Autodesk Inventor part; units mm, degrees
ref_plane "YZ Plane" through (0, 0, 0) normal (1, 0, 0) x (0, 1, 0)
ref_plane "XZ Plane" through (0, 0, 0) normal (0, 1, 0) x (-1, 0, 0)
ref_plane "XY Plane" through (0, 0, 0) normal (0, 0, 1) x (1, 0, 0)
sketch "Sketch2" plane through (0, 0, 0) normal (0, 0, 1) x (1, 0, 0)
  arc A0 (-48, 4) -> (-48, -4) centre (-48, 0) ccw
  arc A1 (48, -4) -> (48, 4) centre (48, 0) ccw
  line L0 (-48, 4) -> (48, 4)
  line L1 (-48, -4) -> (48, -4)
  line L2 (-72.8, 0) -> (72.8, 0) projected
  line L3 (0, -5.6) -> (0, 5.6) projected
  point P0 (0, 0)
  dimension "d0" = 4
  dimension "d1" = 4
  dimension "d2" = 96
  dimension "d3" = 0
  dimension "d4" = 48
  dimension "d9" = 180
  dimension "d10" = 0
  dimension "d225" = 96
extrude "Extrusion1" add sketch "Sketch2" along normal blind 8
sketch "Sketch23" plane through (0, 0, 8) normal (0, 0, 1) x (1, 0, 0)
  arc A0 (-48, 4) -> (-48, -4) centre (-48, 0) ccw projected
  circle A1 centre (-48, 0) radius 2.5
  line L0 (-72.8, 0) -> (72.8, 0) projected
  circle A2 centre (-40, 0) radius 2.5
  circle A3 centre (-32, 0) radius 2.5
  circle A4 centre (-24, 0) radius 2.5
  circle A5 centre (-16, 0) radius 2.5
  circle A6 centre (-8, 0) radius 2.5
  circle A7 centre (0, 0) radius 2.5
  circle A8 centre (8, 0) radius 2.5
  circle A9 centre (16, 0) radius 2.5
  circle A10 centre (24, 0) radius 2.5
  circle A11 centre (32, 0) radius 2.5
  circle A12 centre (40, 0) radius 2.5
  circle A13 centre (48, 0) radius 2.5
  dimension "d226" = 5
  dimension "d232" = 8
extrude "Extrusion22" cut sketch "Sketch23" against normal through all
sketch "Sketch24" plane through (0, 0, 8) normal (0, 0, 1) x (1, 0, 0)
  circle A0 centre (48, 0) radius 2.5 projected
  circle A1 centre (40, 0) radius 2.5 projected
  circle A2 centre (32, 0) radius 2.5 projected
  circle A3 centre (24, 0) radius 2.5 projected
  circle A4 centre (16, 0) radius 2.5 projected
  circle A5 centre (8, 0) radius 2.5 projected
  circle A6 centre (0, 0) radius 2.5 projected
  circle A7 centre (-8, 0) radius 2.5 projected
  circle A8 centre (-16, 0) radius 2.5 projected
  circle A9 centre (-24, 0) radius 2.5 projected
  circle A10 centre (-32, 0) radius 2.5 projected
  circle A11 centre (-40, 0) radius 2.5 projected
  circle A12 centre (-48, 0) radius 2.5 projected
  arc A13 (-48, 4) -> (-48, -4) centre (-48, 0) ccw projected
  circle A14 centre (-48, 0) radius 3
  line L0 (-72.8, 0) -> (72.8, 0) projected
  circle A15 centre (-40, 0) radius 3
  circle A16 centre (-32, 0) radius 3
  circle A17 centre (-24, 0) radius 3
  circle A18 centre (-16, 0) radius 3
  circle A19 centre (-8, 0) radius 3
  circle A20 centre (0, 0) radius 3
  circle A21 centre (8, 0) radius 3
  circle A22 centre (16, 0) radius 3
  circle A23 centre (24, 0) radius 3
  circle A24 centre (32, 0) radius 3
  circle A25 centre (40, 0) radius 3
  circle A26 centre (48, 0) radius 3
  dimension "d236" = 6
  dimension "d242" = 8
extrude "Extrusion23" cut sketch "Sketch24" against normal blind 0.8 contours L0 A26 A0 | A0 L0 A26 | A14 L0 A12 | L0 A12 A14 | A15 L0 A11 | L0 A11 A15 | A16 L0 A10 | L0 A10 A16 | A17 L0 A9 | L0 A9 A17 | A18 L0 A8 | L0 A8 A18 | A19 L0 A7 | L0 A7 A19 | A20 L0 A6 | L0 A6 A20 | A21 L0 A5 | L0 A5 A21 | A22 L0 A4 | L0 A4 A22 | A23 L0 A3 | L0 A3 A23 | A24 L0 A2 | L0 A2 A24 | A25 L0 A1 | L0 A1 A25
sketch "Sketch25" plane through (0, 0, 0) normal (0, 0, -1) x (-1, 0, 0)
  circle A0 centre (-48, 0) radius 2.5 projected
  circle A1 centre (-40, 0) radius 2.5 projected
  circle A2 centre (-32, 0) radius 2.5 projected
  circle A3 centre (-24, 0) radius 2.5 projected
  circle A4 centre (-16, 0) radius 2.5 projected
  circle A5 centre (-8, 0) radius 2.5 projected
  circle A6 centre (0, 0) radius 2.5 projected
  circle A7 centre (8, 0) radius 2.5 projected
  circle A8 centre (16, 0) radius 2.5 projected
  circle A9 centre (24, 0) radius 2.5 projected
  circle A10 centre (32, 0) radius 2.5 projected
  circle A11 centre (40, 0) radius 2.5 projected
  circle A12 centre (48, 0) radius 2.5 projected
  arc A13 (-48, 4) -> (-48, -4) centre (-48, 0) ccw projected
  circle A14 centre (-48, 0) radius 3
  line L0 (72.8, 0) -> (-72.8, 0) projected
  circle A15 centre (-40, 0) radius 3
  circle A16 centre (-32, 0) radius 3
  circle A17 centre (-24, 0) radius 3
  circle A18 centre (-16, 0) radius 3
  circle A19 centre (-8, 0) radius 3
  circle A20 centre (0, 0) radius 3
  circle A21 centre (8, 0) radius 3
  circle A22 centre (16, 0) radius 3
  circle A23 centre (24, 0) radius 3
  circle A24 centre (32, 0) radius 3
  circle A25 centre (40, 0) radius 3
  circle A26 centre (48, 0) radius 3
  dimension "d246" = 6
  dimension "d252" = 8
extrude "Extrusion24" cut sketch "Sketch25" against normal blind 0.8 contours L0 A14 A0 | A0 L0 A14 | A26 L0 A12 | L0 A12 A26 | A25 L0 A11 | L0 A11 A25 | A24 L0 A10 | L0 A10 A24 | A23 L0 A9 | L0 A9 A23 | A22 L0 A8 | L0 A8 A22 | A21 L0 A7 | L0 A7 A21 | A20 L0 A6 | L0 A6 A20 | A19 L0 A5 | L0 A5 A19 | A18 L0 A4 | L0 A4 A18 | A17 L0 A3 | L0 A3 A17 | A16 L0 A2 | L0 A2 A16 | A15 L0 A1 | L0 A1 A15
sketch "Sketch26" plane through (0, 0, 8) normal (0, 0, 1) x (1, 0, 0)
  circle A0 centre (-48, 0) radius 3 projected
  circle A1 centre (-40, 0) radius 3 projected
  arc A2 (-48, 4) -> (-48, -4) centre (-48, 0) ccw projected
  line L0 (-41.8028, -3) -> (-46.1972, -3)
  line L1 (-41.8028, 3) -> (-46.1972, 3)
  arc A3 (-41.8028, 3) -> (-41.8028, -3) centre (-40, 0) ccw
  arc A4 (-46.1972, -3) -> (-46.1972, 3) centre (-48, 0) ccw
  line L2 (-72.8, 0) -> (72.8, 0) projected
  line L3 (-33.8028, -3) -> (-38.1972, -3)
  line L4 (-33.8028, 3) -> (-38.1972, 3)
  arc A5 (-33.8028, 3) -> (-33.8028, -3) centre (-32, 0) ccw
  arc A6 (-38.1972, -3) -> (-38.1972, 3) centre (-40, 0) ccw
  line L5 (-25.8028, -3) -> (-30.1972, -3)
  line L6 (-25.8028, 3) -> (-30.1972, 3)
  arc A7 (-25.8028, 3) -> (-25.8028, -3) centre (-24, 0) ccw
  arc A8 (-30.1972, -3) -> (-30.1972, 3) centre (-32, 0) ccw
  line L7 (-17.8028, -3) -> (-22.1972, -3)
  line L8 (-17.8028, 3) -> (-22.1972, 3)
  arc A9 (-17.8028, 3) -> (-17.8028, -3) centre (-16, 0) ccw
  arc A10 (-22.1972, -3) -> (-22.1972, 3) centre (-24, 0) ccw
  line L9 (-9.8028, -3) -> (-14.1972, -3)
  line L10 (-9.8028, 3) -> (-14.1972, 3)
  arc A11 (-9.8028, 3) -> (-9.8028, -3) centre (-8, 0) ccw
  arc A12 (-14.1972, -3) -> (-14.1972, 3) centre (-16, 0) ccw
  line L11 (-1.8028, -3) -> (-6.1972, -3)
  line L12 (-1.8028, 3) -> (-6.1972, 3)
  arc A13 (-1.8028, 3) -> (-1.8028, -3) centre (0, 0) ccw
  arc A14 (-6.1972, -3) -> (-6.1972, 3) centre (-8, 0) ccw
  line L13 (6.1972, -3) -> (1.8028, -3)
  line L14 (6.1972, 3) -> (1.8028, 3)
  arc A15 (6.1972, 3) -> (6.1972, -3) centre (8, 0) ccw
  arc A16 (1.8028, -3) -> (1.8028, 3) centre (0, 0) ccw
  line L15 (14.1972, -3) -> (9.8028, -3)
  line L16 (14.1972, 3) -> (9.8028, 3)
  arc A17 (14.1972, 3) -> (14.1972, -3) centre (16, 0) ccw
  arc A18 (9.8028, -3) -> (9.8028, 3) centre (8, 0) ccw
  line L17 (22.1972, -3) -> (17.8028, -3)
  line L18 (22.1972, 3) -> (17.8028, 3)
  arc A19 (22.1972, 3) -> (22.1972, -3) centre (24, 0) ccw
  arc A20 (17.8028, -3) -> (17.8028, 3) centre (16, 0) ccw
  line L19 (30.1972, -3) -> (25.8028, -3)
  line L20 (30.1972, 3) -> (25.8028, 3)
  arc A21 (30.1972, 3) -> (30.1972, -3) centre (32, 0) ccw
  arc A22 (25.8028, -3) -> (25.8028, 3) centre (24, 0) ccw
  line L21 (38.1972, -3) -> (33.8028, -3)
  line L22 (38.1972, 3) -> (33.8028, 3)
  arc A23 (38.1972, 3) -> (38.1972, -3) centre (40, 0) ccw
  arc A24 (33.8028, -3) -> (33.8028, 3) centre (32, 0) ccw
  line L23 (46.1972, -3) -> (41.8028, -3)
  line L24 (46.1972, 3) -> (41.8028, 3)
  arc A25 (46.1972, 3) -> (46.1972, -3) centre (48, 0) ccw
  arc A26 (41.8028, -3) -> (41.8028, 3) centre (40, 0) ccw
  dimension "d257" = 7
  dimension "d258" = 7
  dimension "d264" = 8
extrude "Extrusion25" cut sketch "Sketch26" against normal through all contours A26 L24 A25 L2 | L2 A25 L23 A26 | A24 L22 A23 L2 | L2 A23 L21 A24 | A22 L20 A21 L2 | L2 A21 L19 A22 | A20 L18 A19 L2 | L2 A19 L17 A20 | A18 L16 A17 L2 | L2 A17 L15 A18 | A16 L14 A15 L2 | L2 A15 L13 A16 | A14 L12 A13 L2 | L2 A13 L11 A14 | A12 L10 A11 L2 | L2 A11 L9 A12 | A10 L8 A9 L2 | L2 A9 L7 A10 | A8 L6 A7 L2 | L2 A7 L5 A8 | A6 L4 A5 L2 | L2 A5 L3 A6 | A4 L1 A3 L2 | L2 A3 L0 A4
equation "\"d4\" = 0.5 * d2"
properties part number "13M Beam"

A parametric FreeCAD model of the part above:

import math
import FreeCAD as App
import Part
import Sketcher
Q = App.Units.Quantity

doc = App.newDocument("Part")
params = doc.addObject("Spreadsheet::Sheet", "Params")
for row, (alias, value) in enumerate([
    ("sketch1_radius", "4 mm"),
    ("sketch1_width", "96 mm"),
    ("pad1_length", "8 mm"),
    ("sketch2_diameter", "5 mm"),
    ("sketch3_diameter", "6 mm"),
    ("sketch3_diameter2", "5 mm"),
    ("pocket2_length", "0.8 mm"),
    ("sketch4_diameter", "6 mm"),
    ("sketch4_diameter2", "5 mm"),
    ("pocket3_length", "0.8 mm"),
    ("sketch5_radius", "3.5 mm"),
], start=1):
    params.set(f"A{row}", alias)
    params.set(f"B{row}", "=" + value)
    params.setAlias(f"B{row}", alias)

body = doc.addObject("PartDesign::Body", "Body")

# Sketch on XY plane
sketch1 = body.newObject("Sketcher::SketchObject", "Sketch")
sketch1.AttachmentSupport = (doc.getObject("XY_Plane"), [""])
sketch1.MapMode = "FlatFace"
sketch1.addGeometry(Part.ArcOfCircle(Part.Circle(App.Vector(-48, 0, 0), App.Vector(0, 0, 1), 4), math.radians(90), math.radians(270)), False)
sketch1.addGeometry(Part.LineSegment(App.Vector(-48, -4, 0), App.Vector(48, -4, 0)), False)
sketch1.addGeometry(Part.ArcOfCircle(Part.Circle(App.Vector(48, 0, 0), App.Vector(0, 0, 1), 4), math.radians(-90), math.radians(90)), False)
sketch1.addGeometry(Part.LineSegment(App.Vector(48, 4, 0), App.Vector(-48, 4, 0)), False)
sketch1.addConstraint(Sketcher.Constraint("Tangent", 0, 2, 1, 1))
sketch1.addConstraint(Sketcher.Constraint("Tangent", 1, 2, 2, 1))
sketch1.addConstraint(Sketcher.Constraint("Tangent", 2, 2, 3, 1))
sketch1.addConstraint(Sketcher.Constraint("Tangent", 3, 2, 0, 1))
sketch1.addConstraint(Sketcher.Constraint("Horizontal", 1))
sketch1.addConstraint(Sketcher.Constraint("Horizontal", 3))
sketch1.addConstraint(Sketcher.Constraint("Symmetric", 0, 3, 2, 3, -1, 1))
sketch1.addConstraint(Sketcher.Constraint("Radius", 0, Q("4 mm")))
sketch1.addConstraint(Sketcher.Constraint("DistanceX", 1, 1, 1, 2, Q("96 mm")))
sketch1.setExpression("Constraints[7]", "Params.sketch1_radius")
sketch1.setExpression("Constraints[8]", "Params.sketch1_width")
pad1 = body.newObject("PartDesign::Pad", "Pad")
pad1.Profile = sketch1
pad1.setExpression("Length", "Params.pad1_length")

# Sketch on XY plane
sketch2 = body.newObject("Sketcher::SketchObject", "Sketch001")
sketch2.AttachmentSupport = (doc.getObject("XY_Plane"), [""])
sketch2.MapMode = "FlatFace"
sketch2.AttachmentOffset = App.Placement(App.Vector(0, 0, 8), App.Rotation())
sketch2.addGeometry(Part.Circle(App.Vector(-48, 0, 0), App.Vector(0, 0, 1), 2.5), False)
sketch2.addGeometry(Part.Circle(App.Vector(48, 0, 0), App.Vector(0, 0, 1), 2.5), False)
sketch2.addGeometry(Part.Circle(App.Vector(40, 0, 0), App.Vector(0, 0, 1), 2.5), False)
sketch2.addGeometry(Part.Circle(App.Vector(32, 0, 0), App.Vector(0, 0, 1), 2.5), False)
sketch2.addGeometry(Part.Circle(App.Vector(24, 0, 0), App.Vector(0, 0, 1), 2.5), False)
sketch2.addGeometry(Part.Circle(App.Vector(16, 0, 0), App.Vector(0, 0, 1), 2.5), False)
sketch2.addGeometry(Part.Circle(App.Vector(8, 0, 0), App.Vector(0, 0, 1), 2.5), False)
sketch2.addGeometry(Part.Circle(App.Vector(0, 0, 0), App.Vector(0, 0, 1), 2.5), False)
sketch2.addGeometry(Part.Circle(App.Vector(-8, 0, 0), App.Vector(0, 0, 1), 2.5), False)
sketch2.addGeometry(Part.Circle(App.Vector(-16, 0, 0), App.Vector(0, 0, 1), 2.5), False)
sketch2.addGeometry(Part.Circle(App.Vector(-24, 0, 0), App.Vector(0, 0, 1), 2.5), False)
sketch2.addGeometry(Part.Circle(App.Vector(-32, 0, 0), App.Vector(0, 0, 1), 2.5), False)
sketch2.addGeometry(Part.Circle(App.Vector(-40, 0, 0), App.Vector(0, 0, 1), 2.5), False)
sketch2.addConstraint(Sketcher.Constraint("Coincident", 7, 3, -1, 1))
sketch2.addConstraint(Sketcher.Constraint("Equal", 0, 1))
sketch2.addConstraint(Sketcher.Constraint("Equal", 1, 2))
sketch2.addConstraint(Sketcher.Constraint("Equal", 2, 3))
sketch2.addConstraint(Sketcher.Constraint("Equal", 3, 4))
sketch2.addConstraint(Sketcher.Constraint("Equal", 4, 5))
sketch2.addConstraint(Sketcher.Constraint("Equal", 5, 6))
sketch2.addConstraint(Sketcher.Constraint("Equal", 6, 7))
sketch2.addConstraint(Sketcher.Constraint("Equal", 7, 8))
sketch2.addConstraint(Sketcher.Constraint("Equal", 8, 9))
sketch2.addConstraint(Sketcher.Constraint("Equal", 9, 10))
sketch2.addConstraint(Sketcher.Constraint("Equal", 10, 11))
sketch2.addConstraint(Sketcher.Constraint("Equal", 11, 12))
sketch2.addConstraint(Sketcher.Constraint("Symmetric", 0, 3, 1, 3, -1, 1))
sketch2.addConstraint(Sketcher.Constraint("Symmetric", 6, 3, 8, 3, -1, 1))
sketch2.addConstraint(Sketcher.Constraint("Symmetric", 5, 3, 9, 3, -1, 1))
sketch2.addConstraint(Sketcher.Constraint("Symmetric", 4, 3, 10, 3, -1, 1))
sketch2.addConstraint(Sketcher.Constraint("Symmetric", 3, 3, 11, 3, -1, 1))
sketch2.addConstraint(Sketcher.Constraint("Symmetric", 2, 3, 12, 3, -1, 1))
sketch2.addConstraint(Sketcher.Constraint("PointOnObject", 0, 3, -1))
sketch2.addConstraint(Sketcher.Constraint("PointOnObject", 2, 3, -1))
sketch2.addConstraint(Sketcher.Constraint("PointOnObject", 3, 3, -1))
sketch2.addConstraint(Sketcher.Constraint("PointOnObject", 4, 3, -1))
sketch2.addConstraint(Sketcher.Constraint("PointOnObject", 5, 3, -1))
sketch2.addConstraint(Sketcher.Constraint("PointOnObject", 6, 3, -1))
sketch2.addConstraint(Sketcher.Constraint("Diameter", 0, Q("5 mm")))
sketch2.addConstraint(Sketcher.Constraint("DistanceX", -1, 1, 6, 3, Q("8 mm")))
sketch2.addConstraint(Sketcher.Constraint("DistanceX", 2, 3, 1, 3, Q("8 mm")))
sketch2.addConstraint(Sketcher.Constraint("DistanceX", 3, 3, 2, 3, Q("8 mm")))
sketch2.addConstraint(Sketcher.Constraint("DistanceX", 4, 3, 3, 3, Q("8 mm")))
sketch2.addConstraint(Sketcher.Constraint("DistanceX", 5, 3, 4, 3, Q("8 mm")))
sketch2.addConstraint(Sketcher.Constraint("DistanceX", 6, 3, 5, 3, Q("8 mm")))
sketch2.setExpression("Constraints[25]", "Params.sketch2_diameter")
pocket1 = body.newObject("PartDesign::Pocket", "Pocket")
pocket1.Profile = sketch2
pocket1.Type = "ThroughAll"

# Sketch on XY plane
sketch3 = body.newObject("Sketcher::SketchObject", "Sketch002")
sketch3.AttachmentSupport = (doc.getObject("XY_Plane"), [""])
sketch3.MapMode = "FlatFace"
sketch3.AttachmentOffset = App.Placement(App.Vector(0, 0, 8), App.Rotation())
sketch3.addGeometry(Part.Circle(App.Vector(48, 0, 0), App.Vector(0, 0, 1), 3), False)
sketch3.addGeometry(Part.Circle(App.Vector(48, 0, 0), App.Vector(0, 0, 1), 2.5), False)
sketch3.addGeometry(Part.Circle(App.Vector(-48, 0, 0), App.Vector(0, 0, 1), 3), False)
sketch3.addGeometry(Part.Circle(App.Vector(-48, 0, 0), App.Vector(0, 0, 1), 2.5), False)
sketch3.addGeometry(Part.Circle(App.Vector(-40, 0, 0), App.Vector(0, 0, 1), 3), False)
sketch3.addGeometry(Part.Circle(App.Vector(-40, 0, 0), App.Vector(0, 0, 1), 2.5), False)
sketch3.addGeometry(Part.Circle(App.Vector(-32, 0, 0), App.Vector(0, 0, 1), 3), False)
sketch3.addGeometry(Part.Circle(App.Vector(-32, 0, 0), App.Vector(0, 0, 1), 2.5), False)
sketch3.addGeometry(Part.Circle(App.Vector(-24, 0, 0), App.Vector(0, 0, 1), 3), False)
sketch3.addGeometry(Part.Circle(App.Vector(-24, 0, 0), App.Vector(0, 0, 1), 2.5), False)
sketch3.addGeometry(Part.Circle(App.Vector(-16, 0, 0), App.Vector(0, 0, 1), 3), False)
sketch3.addGeometry(Part.Circle(App.Vector(-16, 0, 0), App.Vector(0, 0, 1), 2.5), False)
sketch3.addGeometry(Part.Circle(App.Vector(-8, 0, 0), App.Vector(0, 0, 1), 3), False)
sketch3.addGeometry(Part.Circle(App.Vector(-8, 0, 0), App.Vector(0, 0, 1), 2.5), False)
sketch3.addGeometry(Part.Circle(App.Vector(0, 0, 0), App.Vector(0, 0, 1), 3), False)
sketch3.addGeometry(Part.Circle(App.Vector(0, 0, 0), App.Vector(0, 0, 1), 2.5), False)
sketch3.addGeometry(Part.Circle(App.Vector(8, 0, 0), App.Vector(0, 0, 1), 3), False)
sketch3.addGeometry(Part.Circle(App.Vector(8, 0, 0), App.Vector(0, 0, 1), 2.5), False)
sketch3.addGeometry(Part.Circle(App.Vector(16, 0, 0), App.Vector(0, 0, 1), 3), False)
sketch3.addGeometry(Part.Circle(App.Vector(16, 0, 0), App.Vector(0, 0, 1), 2.5), False)
sketch3.addGeometry(Part.Circle(App.Vector(24, 0, 0), App.Vector(0, 0, 1), 3), False)
sketch3.addGeometry(Part.Circle(App.Vector(24, 0, 0), App.Vector(0, 0, 1), 2.5), False)
sketch3.addGeometry(Part.Circle(App.Vector(32, 0, 0), App.Vector(0, 0, 1), 3), False)
sketch3.addGeometry(Part.Circle(App.Vector(32, 0, 0), App.Vector(0, 0, 1), 2.5), False)
sketch3.addGeometry(Part.Circle(App.Vector(40, 0, 0), App.Vector(0, 0, 1), 3), False)
sketch3.addGeometry(Part.Circle(App.Vector(40, 0, 0), App.Vector(0, 0, 1), 2.5), False)
sketch3.addConstraint(Sketcher.Constraint("Coincident", 14, 3, -1, 1))
sketch3.addConstraint(Sketcher.Constraint("Coincident", 15, 3, -1, 1))
sketch3.addConstraint(Sketcher.Constraint("Coincident", 1, 3, 0, 3))
sketch3.addConstraint(Sketcher.Constraint("Coincident", 3, 3, 2, 3))
sketch3.addConstraint(Sketcher.Constraint("Coincident", 5, 3, 4, 3))
sketch3.addConstraint(Sketcher.Constraint("Coincident", 7, 3, 6, 3))
sketch3.addConstraint(Sketcher.Constraint("Coincident", 9, 3, 8, 3))
sketch3.addConstraint(Sketcher.Constraint("Coincident", 11, 3, 10, 3))
sketch3.addConstraint(Sketcher.Constraint("Coincident", 13, 3, 12, 3))
sketch3.addConstraint(Sketcher.Constraint("Coincident", 17, 3, 16, 3))
sketch3.addConstraint(Sketcher.Constraint("Coincident", 19, 3, 18, 3))
sketch3.addConstraint(Sketcher.Constraint("Coincident", 21, 3, 20, 3))
sketch3.addConstraint(Sketcher.Constraint("Coincident", 23, 3, 22, 3))
sketch3.addConstraint(Sketcher.Constraint("Coincident", 25, 3, 24, 3))
sketch3.addConstraint(Sketcher.Constraint("Equal", 0, 2))
sketch3.addConstraint(Sketcher.Constraint("Equal", 1, 3))
sketch3.addConstraint(Sketcher.Constraint("Equal", 2, 4))
sketch3.addConstraint(Sketcher.Constraint("Equal", 3, 5))
sketch3.addConstraint(Sketcher.Constraint("Equal", 4, 6))
sketch3.addConstraint(Sketcher.Constraint("Equal", 5, 7))
sketch3.addConstraint(Sketcher.Constraint("Equal", 6, 8))
sketch3.addConstraint(Sketcher.Constraint("Equal", 7, 9))
sketch3.addConstraint(Sketcher.Constraint("Equal", 8, 10))
sketch3.addConstraint(Sketcher.Constraint("Equal", 9, 11))
sketch3.addConstraint(Sketcher.Constraint("Equal", 10, 12))
sketch3.addConstraint(Sketcher.Constraint("Equal", 11, 13))
sketch3.addConstraint(Sketcher.Constraint("Equal", 12, 14))
sketch3.addConstraint(Sketcher.Constraint("Equal", 13, 15))
sketch3.addConstraint(Sketcher.Constraint("Equal", 14, 16))
sketch3.addConstraint(Sketcher.Constraint("Equal", 15, 17))
sketch3.addConstraint(Sketcher.Constraint("Equal", 16, 18))
sketch3.addConstraint(Sketcher.Constraint("Equal", 17, 19))
sketch3.addConstraint(Sketcher.Constraint("Equal", 18, 20))
sketch3.addConstraint(Sketcher.Constraint("Equal", 19, 21))
sketch3.addConstraint(Sketcher.Constraint("Equal", 20, 22))
sketch3.addConstraint(Sketcher.Constraint("Equal", 21, 23))
sketch3.addConstraint(Sketcher.Constraint("Equal", 22, 24))
sketch3.addConstraint(Sketcher.Constraint("Equal", 23, 25))
sketch3.addConstraint(Sketcher.Constraint("Symmetric", 0, 3, 2, 3, -1, 1))
sketch3.addConstraint(Sketcher.Constraint("Symmetric", 12, 3, 16, 3, -1, 1))
sketch3.addConstraint(Sketcher.Constraint("Symmetric", 10, 3, 18, 3, -1, 1))
sketch3.addConstraint(Sketcher.Constraint("Symmetric", 8, 3, 20, 3, -1, 1))
sketch3.addConstraint(Sketcher.Constraint("Symmetric", 6, 3, 22, 3, -1, 1))
sketch3.addConstraint(Sketcher.Constraint("Symmetric", 4, 3, 24, 3, -1, 1))
sketch3.addConstraint(Sketcher.Constraint("PointOnObject", 0, 3, -1))
sketch3.addConstraint(Sketcher.Constraint("PointOnObject", 4, 3, -1))
sketch3.addConstraint(Sketcher.Constraint("PointOnObject", 6, 3, -1))
sketch3.addConstraint(Sketcher.Constraint("PointOnObject", 8, 3, -1))
sketch3.addConstraint(Sketcher.Constraint("PointOnObject", 10, 3, -1))
sketch3.addConstraint(Sketcher.Constraint("PointOnObject", 12, 3, -1))
sketch3.addConstraint(Sketcher.Constraint("Diameter", 0, Q("6 mm")))
sketch3.addConstraint(Sketcher.Constraint("Diameter", 1, Q("5 mm")))
sketch3.addConstraint(Sketcher.Constraint("DistanceX", 12, 3, -1, 1, Q("8 mm")))
sketch3.addConstraint(Sketcher.Constraint("DistanceX", 2, 3, 4, 3, Q("8 mm")))
sketch3.addConstraint(Sketcher.Constraint("DistanceX", 4, 3, 6, 3, Q("8 mm")))
sketch3.addConstraint(Sketcher.Constraint("DistanceX", 6, 3, 8, 3, Q("8 mm")))
sketch3.addConstraint(Sketcher.Constraint("DistanceX", 8, 3, 10, 3, Q("8 mm")))
sketch3.addConstraint(Sketcher.Constraint("DistanceX", 10, 3, 12, 3, Q("8 mm")))
sketch3.setExpression("Constraints[50]", "Params.sketch3_diameter")
sketch3.setExpression("Constraints[51]", "Params.sketch3_diameter2")
pocket2 = body.newObject("PartDesign::Pocket", "Pocket001")
pocket2.Profile = sketch3
pocket2.setExpression("Length", "Params.pocket2_length")

# Sketch on XY plane
sketch4 = body.newObject("Sketcher::SketchObject", "Sketch003")
sketch4.AttachmentSupport = (doc.getObject("XY_Plane"), [""])
sketch4.MapMode = "FlatFace"
sketch4.addGeometry(Part.Circle(App.Vector(48, 0, 0), App.Vector(0, 0, 1), 3), False)
sketch4.addGeometry(Part.Circle(App.Vector(48, 0, 0), App.Vector(0, 0, 1), 2.5), False)
sketch4.addGeometry(Part.Circle(App.Vector(-48, 0, 0), App.Vector(0, 0, 1), 3), False)
sketch4.addGeometry(Part.Circle(App.Vector(-48, 0, 0), App.Vector(0, 0, 1), 2.5), False)
sketch4.addGeometry(Part.Circle(App.Vector(-40, 0, 0), App.Vector(0, 0, 1), 3), False)
sketch4.addGeometry(Part.Circle(App.Vector(-40, 0, 0), App.Vector(0, 0, 1), 2.5), False)
sketch4.addGeometry(Part.Circle(App.Vector(-32, 0, 0), App.Vector(0, 0, 1), 3), False)
sketch4.addGeometry(Part.Circle(App.Vector(-32, 0, 0), App.Vector(0, 0, 1), 2.5), False)
sketch4.addGeometry(Part.Circle(App.Vector(-24, 0, 0), App.Vector(0, 0, 1), 3), False)
sketch4.addGeometry(Part.Circle(App.Vector(-24, 0, 0), App.Vector(0, 0, 1), 2.5), False)
sketch4.addGeometry(Part.Circle(App.Vector(-16, 0, 0), App.Vector(0, 0, 1), 3), False)
sketch4.addGeometry(Part.Circle(App.Vector(-16, 0, 0), App.Vector(0, 0, 1), 2.5), False)
sketch4.addGeometry(Part.Circle(App.Vector(-8, 0, 0), App.Vector(0, 0, 1), 3), False)
sketch4.addGeometry(Part.Circle(App.Vector(-8, 0, 0), App.Vector(0, 0, 1), 2.5), False)
sketch4.addGeometry(Part.Circle(App.Vector(0, 0, 0), App.Vector(0, 0, 1), 3), False)
sketch4.addGeometry(Part.Circle(App.Vector(0, 0, 0), App.Vector(0, 0, 1), 2.5), False)
sketch4.addGeometry(Part.Circle(App.Vector(8, 0, 0), App.Vector(0, 0, 1), 3), False)
sketch4.addGeometry(Part.Circle(App.Vector(8, 0, 0), App.Vector(0, 0, 1), 2.5), False)
sketch4.addGeometry(Part.Circle(App.Vector(16, 0, 0), App.Vector(0, 0, 1), 3), False)
sketch4.addGeometry(Part.Circle(App.Vector(16, 0, 0), App.Vector(0, 0, 1), 2.5), False)
sketch4.addGeometry(Part.Circle(App.Vector(24, 0, 0), App.Vector(0, 0, 1), 3), False)
sketch4.addGeometry(Part.Circle(App.Vector(24, 0, 0), App.Vector(0, 0, 1), 2.5), False)
sketch4.addGeometry(Part.Circle(App.Vector(32, 0, 0), App.Vector(0, 0, 1), 3), False)
sketch4.addGeometry(Part.Circle(App.Vector(32, 0, 0), App.Vector(0, 0, 1), 2.5), False)
sketch4.addGeometry(Part.Circle(App.Vector(40, 0, 0), App.Vector(0, 0, 1), 3), False)
sketch4.addGeometry(Part.Circle(App.Vector(40, 0, 0), App.Vector(0, 0, 1), 2.5), False)
sketch4.addConstraint(Sketcher.Constraint("Coincident", 14, 3, -1, 1))
sketch4.addConstraint(Sketcher.Constraint("Coincident", 15, 3, -1, 1))
sketch4.addConstraint(Sketcher.Constraint("Coincident", 1, 3, 0, 3))
sketch4.addConstraint(Sketcher.Constraint("Coincident", 3, 3, 2, 3))
sketch4.addConstraint(Sketcher.Constraint("Coincident", 5, 3, 4, 3))
sketch4.addConstraint(Sketcher.Constraint("Coincident", 7, 3, 6, 3))
sketch4.addConstraint(Sketcher.Constraint("Coincident", 9, 3, 8, 3))
sketch4.addConstraint(Sketcher.Constraint("Coincident", 11, 3, 10, 3))
sketch4.addConstraint(Sketcher.Constraint("Coincident", 13, 3, 12, 3))
sketch4.addConstraint(Sketcher.Constraint("Coincident", 17, 3, 16, 3))
sketch4.addConstraint(Sketcher.Constraint("Coincident", 19, 3, 18, 3))
sketch4.addConstraint(Sketcher.Constraint("Coincident", 21, 3, 20, 3))
sketch4.addConstraint(Sketcher.Constraint("Coincident", 23, 3, 22, 3))
sketch4.addConstraint(Sketcher.Constraint("Coincident", 25, 3, 24, 3))
sketch4.addConstraint(Sketcher.Constraint("Equal", 0, 2))
sketch4.addConstraint(Sketcher.Constraint("Equal", 1, 3))
sketch4.addConstraint(Sketcher.Constraint("Equal", 2, 4))
sketch4.addConstraint(Sketcher.Constraint("Equal", 3, 5))
sketch4.addConstraint(Sketcher.Constraint("Equal", 4, 6))
sketch4.addConstraint(Sketcher.Constraint("Equal", 5, 7))
sketch4.addConstraint(Sketcher.Constraint("Equal", 6, 8))
sketch4.addConstraint(Sketcher.Constraint("Equal", 7, 9))
sketch4.addConstraint(Sketcher.Constraint("Equal", 8, 10))
sketch4.addConstraint(Sketcher.Constraint("Equal", 9, 11))
sketch4.addConstraint(Sketcher.Constraint("Equal", 10, 12))
sketch4.addConstraint(Sketcher.Constraint("Equal", 11, 13))
sketch4.addConstraint(Sketcher.Constraint("Equal", 12, 14))
sketch4.addConstraint(Sketcher.Constraint("Equal", 13, 15))
sketch4.addConstraint(Sketcher.Constraint("Equal", 14, 16))
sketch4.addConstraint(Sketcher.Constraint("Equal", 15, 17))
sketch4.addConstraint(Sketcher.Constraint("Equal", 16, 18))
sketch4.addConstraint(Sketcher.Constraint("Equal", 17, 19))
sketch4.addConstraint(Sketcher.Constraint("Equal", 18, 20))
sketch4.addConstraint(Sketcher.Constraint("Equal", 19, 21))
sketch4.addConstraint(Sketcher.Constraint("Equal", 20, 22))
sketch4.addConstraint(Sketcher.Constraint("Equal", 21, 23))
sketch4.addConstraint(Sketcher.Constraint("Equal", 22, 24))
sketch4.addConstraint(Sketcher.Constraint("Equal", 23, 25))
sketch4.addConstraint(Sketcher.Constraint("Symmetric", 0, 3, 2, 3, -1, 1))
sketch4.addConstraint(Sketcher.Constraint("Symmetric", 12, 3, 16, 3, -1, 1))
sketch4.addConstraint(Sketcher.Constraint("Symmetric", 10, 3, 18, 3, -1, 1))
sketch4.addConstraint(Sketcher.Constraint("Symmetric", 8, 3, 20, 3, -1, 1))
sketch4.addConstraint(Sketcher.Constraint("Symmetric", 6, 3, 22, 3, -1, 1))
sketch4.addConstraint(Sketcher.Constraint("Symmetric", 4, 3, 24, 3, -1, 1))
sketch4.addConstraint(Sketcher.Constraint("PointOnObject", 0, 3, -1))
sketch4.addConstraint(Sketcher.Constraint("PointOnObject", 4, 3, -1))
sketch4.addConstraint(Sketcher.Constraint("PointOnObject", 6, 3, -1))
sketch4.addConstraint(Sketcher.Constraint("PointOnObject", 8, 3, -1))
sketch4.addConstraint(Sketcher.Constraint("PointOnObject", 10, 3, -1))
sketch4.addConstraint(Sketcher.Constraint("PointOnObject", 12, 3, -1))
sketch4.addConstraint(Sketcher.Constraint("Diameter", 0, Q("6 mm")))
sketch4.addConstraint(Sketcher.Constraint("Diameter", 1, Q("5 mm")))
sketch4.addConstraint(Sketcher.Constraint("DistanceX", 12, 3, -1, 1, Q("8 mm")))
sketch4.addConstraint(Sketcher.Constraint("DistanceX", 2, 3, 4, 3, Q("8 mm")))
sketch4.addConstraint(Sketcher.Constraint("DistanceX", 4, 3, 6, 3, Q("8 mm")))
sketch4.addConstraint(Sketcher.Constraint("DistanceX", 6, 3, 8, 3, Q("8 mm")))
sketch4.addConstraint(Sketcher.Constraint("DistanceX", 8, 3, 10, 3, Q("8 mm")))
sketch4.addConstraint(Sketcher.Constraint("DistanceX", 10, 3, 12, 3, Q("8 mm")))
sketch4.setExpression("Constraints[50]", "Params.sketch4_diameter")
sketch4.setExpression("Constraints[51]", "Params.sketch4_diameter2")
pocket3 = body.newObject("PartDesign::Pocket", "Pocket002")
pocket3.Profile = sketch4
pocket3.setExpression("Length", "Params.pocket3_length")
pocket3.Reversed = True

# Sketch on XY plane
sketch5 = body.newObject("Sketcher::SketchObject", "Sketch004")
sketch5.AttachmentSupport = (doc.getObject("XY_Plane"), [""])
sketch5.MapMode = "FlatFace"
sketch5.AttachmentOffset = App.Placement(App.Vector(0, 0, 8), App.Rotation())
sketch5.addGeometry(Part.ArcOfCircle(Part.Circle(App.Vector(40, 0, 0), App.Vector(0, 0, 1), 3.5), math.radians(-59), math.radians(59)), False)
sketch5.addGeometry(Part.LineSegment(App.Vector(41.8, -3, 0), App.Vector(46.2, -3, 0)), False)
sketch5.addGeometry(Part.ArcOfCircle(Part.Circle(App.Vector(48, 0, 0), App.Vector(0, 0, 1), 3.5), math.radians(121), math.radians(239)), False)
sketch5.addGeometry(Part.LineSegment(App.Vector(46.2, 3, 0), App.Vector(41.8, 3, 0)), False)
sketch5.addGeometry(Part.ArcOfCircle(Part.Circle(App.Vector(32, 0, 0), App.Vector(0, 0, 1), 3.5), math.radians(-59), math.radians(59)), False)
sketch5.addGeometry(Part.LineSegment(App.Vector(33.8, -3, 0), App.Vector(38.2, -3, 0)), False)
sketch5.addGeometry(Part.ArcOfCircle(Part.Circle(App.Vector(40, 0, 0), App.Vector(0, 0, 1), 3.5), math.radians(121), math.radians(239)), False)
sketch5.addGeometry(Part.LineSegment(App.Vector(38.2, 3, 0), App.Vector(33.8, 3, 0)), False)
sketch5.addGeometry(Part.ArcOfCircle(Part.Circle(App.Vector(24, 0, 0), App.Vector(0, 0, 1), 3.5), math.radians(-59), math.radians(59)), False)
sketch5.addGeometry(Part.LineSegment(App.Vector(25.8, -3, 0), App.Vector(30.2, -3, 0)), False)
sketch5.addGeometry(Part.ArcOfCircle(Part.Circle(App.Vector(32, 0, 0), App.Vector(0, 0, 1), 3.5), math.radians(121), math.radians(239)), False)
sketch5.addGeometry(Part.LineSegment(App.Vector(30.2, 3, 0), App.Vector(25.8, 3, 0)), False)
sketch5.addGeometry(Part.ArcOfCircle(Part.Circle(App.Vector(16, 0, 0), App.Vector(0, 0, 1), 3.5), math.radians(-59), math.radians(59)), False)
sketch5.addGeometry(Part.LineSegment(App.Vector(17.8, -3, 0), App.Vector(22.2, -3, 0)), False)
sketch5.addGeometry(Part.ArcOfCircle(Part.Circle(App.Vector(24, 0, 0), App.Vector(0, 0, 1), 3.5), math.radians(121), math.radians(239)), False)
sketch5.addGeometry(Part.LineSegment(App.Vector(22.2, 3, 0), App.Vector(17.8, 3, 0)), False)
sketch5.addGeometry(Part.ArcOfCircle(Part.Circle(App.Vector(8, 0, 0), App.Vector(0, 0, 1), 3.5), math.radians(-59), math.radians(59)), False)
sketch5.addGeometry(Part.LineSegment(App.Vector(9.8, -3, 0), App.Vector(14.2, -3, 0)), False)
sketch5.addGeometry(Part.ArcOfCircle(Part.Circle(App.Vector(16, 0, 0), App.Vector(0, 0, 1), 3.5), math.radians(121), math.radians(239)), False)
sketch5.addGeometry(Part.LineSegment(App.Vector(14.2, 3, 0), App.Vector(9.8, 3, 0)), False)
sketch5.addGeometry(Part.ArcOfCircle(Part.Circle(App.Vector(0, 0, 0), App.Vector(0, 0, 1), 3.5), math.radians(-59), math.radians(59)), False)
sketch5.addGeometry(Part.LineSegment(App.Vector(1.8, -3, 0), App.Vector(6.2, -3, 0)), False)
sketch5.addGeometry(Part.ArcOfCircle(Part.Circle(App.Vector(8, 0, 0), App.Vector(0, 0, 1), 3.5), math.radians(121), math.radians(239)), False)
sketch5.addGeometry(Part.LineSegment(App.Vector(6.2, 3, 0), App.Vector(1.8, 3, 0)), False)
sketch5.addGeometry(Part.ArcOfCircle(Part.Circle(App.Vector(-8, 0, 0), App.Vector(0, 0, 1), 3.5), math.radians(-59), math.radians(59)), False)
sketch5.addGeometry(Part.LineSegment(App.Vector(-6.2, -3, 0), App.Vector(-1.8, -3, 0)), False)
sketch5.addGeometry(Part.ArcOfCircle(Part.Circle(App.Vector(0, 0, 0), App.Vector(0, 0, 1), 3.5), math.radians(121), math.radians(239)), False)
sketch5.addGeometry(Part.LineSegment(App.Vector(-1.8, 3, 0), App.Vector(-6.2, 3, 0)), False)
sketch5.addGeometry(Part.ArcOfCircle(Part.Circle(App.Vector(-16, 0, 0), App.Vector(0, 0, 1), 3.5), math.radians(-59), math.radians(59)), False)
sketch5.addGeometry(Part.LineSegment(App.Vector(-14.2, -3, 0), App.Vector(-9.8, -3, 0)), False)
sketch5.addGeometry(Part.ArcOfCircle(Part.Circle(App.Vector(-8, 0, 0), App.Vector(0, 0, 1), 3.5), math.radians(121), math.radians(239)), False)
sketch5.addGeometry(Part.LineSegment(App.Vector(-9.8, 3, 0), App.Vector(-14.2, 3, 0)), False)
sketch5.addGeometry(Part.ArcOfCircle(Part.Circle(App.Vector(-24, 0, 0), App.Vector(0, 0, 1), 3.5), math.radians(-59), math.radians(59)), False)
sketch5.addGeometry(Part.LineSegment(App.Vector(-22.2, -3, 0), App.Vector(-17.8, -3, 0)), False)
sketch5.addGeometry(Part.ArcOfCircle(Part.Circle(App.Vector(-16, 0, 0), App.Vector(0, 0, 1), 3.5), math.radians(121), math.radians(239)), False)
sketch5.addGeometry(Part.LineSegment(App.Vector(-17.8, 3, 0), App.Vector(-22.2, 3, 0)), False)
sketch5.addGeometry(Part.ArcOfCircle(Part.Circle(App.Vector(-32, 0, 0), App.Vector(0, 0, 1), 3.5), math.radians(-59), math.radians(59)), False)
sketch5.addGeometry(Part.LineSegment(App.Vector(-30.2, -3, 0), App.Vector(-25.8, -3, 0)), False)
sketch5.addGeometry(Part.ArcOfCircle(Part.Circle(App.Vector(-24, 0, 0), App.Vector(0, 0, 1), 3.5), math.radians(121), math.radians(239)), False)
sketch5.addGeometry(Part.LineSegment(App.Vector(-25.8, 3, 0), App.Vector(-30.2, 3, 0)), False)
sketch5.addGeometry(Part.ArcOfCircle(Part.Circle(App.Vector(-40, 0, 0), App.Vector(0, 0, 1), 3.5), math.radians(-59), math.radians(59)), False)
sketch5.addGeometry(Part.LineSegment(App.Vector(-38.2, -3, 0), App.Vector(-33.8, -3, 0)), False)
sketch5.addGeometry(Part.ArcOfCircle(Part.Circle(App.Vector(-32, 0, 0), App.Vector(0, 0, 1), 3.5), math.radians(121), math.radians(239)), False)
sketch5.addGeometry(Part.LineSegment(App.Vector(-33.8, 3, 0), App.Vector(-38.2, 3, 0)), False)
sketch5.addGeometry(Part.ArcOfCircle(Part.Circle(App.Vector(-48, 0, 0), App.Vector(0, 0, 1), 3.5), math.radians(-59), math.radians(59)), False)
sketch5.addGeometry(Part.LineSegment(App.Vector(-46.2, -3, 0), App.Vector(-41.8, -3, 0)), False)
sketch5.addGeometry(Part.ArcOfCircle(Part.Circle(App.Vector(-40, 0, 0), App.Vector(0, 0, 1), 3.5), math.radians(121), math.radians(239)), False)
sketch5.addGeometry(Part.LineSegment(App.Vector(-41.8, 3, 0), App.Vector(-46.2, 3, 0)), False)
sketch5.addConstraint(Sketcher.Constraint("Coincident", 0, 1, 1, 1))
sketch5.addConstraint(Sketcher.Constraint("Coincident", 1, 2, 2, 2))
sketch5.addConstraint(Sketcher.Constraint("Coincident", 2, 1, 3, 1))
sketch5.addConstraint(Sketcher.Constraint("Coincident", 3, 2, 0, 2))
sketch5.addConstraint(Sketcher.Constraint("Coincident", 4, 1, 5, 1))
sketch5.addConstraint(Sketcher.Constraint("Coincident", 5, 2, 6, 2))
sketch5.addConstraint(Sketcher.Constraint("Coincident", 6, 1, 7, 1))
sketch5.addConstraint(Sketcher.Constraint("Coincident", 7, 2, 4, 2))
sketch5.addConstraint(Sketcher.Constraint("Coincident", 8, 1, 9, 1))
sketch5.addConstraint(Sketcher.Constraint("Coincident", 9, 2, 10, 2))
sketch5.addConstraint(Sketcher.Constraint("Coincident", 10, 1, 11, 1))
sketch5.addConstraint(Sketcher.Constraint("Coincident", 11, 2, 8, 2))
sketch5.addConstraint(Sketcher.Constraint("Coincident", 12, 1, 13, 1))
sketch5.addConstraint(Sketcher.Constraint("Coincident", 13, 2, 14, 2))
sketch5.addConstraint(Sketcher.Constraint("Coincident", 14, 1, 15, 1))
sketch5.addConstraint(Sketcher.Constraint("Coincident", 15, 2, 12, 2))
sketch5.addConstraint(Sketcher.Constraint("Coincident", 16, 1, 17, 1))
sketch5.addConstraint(Sketcher.Constraint("Coincident", 17, 2, 18, 2))
sketch5.addConstraint(Sketcher.Constraint("Coincident", 18, 1, 19, 1))
sketch5.addConstraint(Sketcher.Constraint("Coincident", 19, 2, 16, 2))
sketch5.addConstraint(Sketcher.Constraint("Coincident", 20, 1, 21, 1))
sketch5.addConstraint(Sketcher.Constraint("Coincident", 21, 2, 22, 2))
sketch5.addConstraint(Sketcher.Constraint("Coincident", 22, 1, 23, 1))
sketch5.addConstraint(Sketcher.Constraint("Coincident", 23, 2, 20, 2))
sketch5.addConstraint(Sketcher.Constraint("Coincident", 24, 1, 25, 1))
sketch5.addConstraint(Sketcher.Constraint("Coincident", 25, 2, 26, 2))
sketch5.addConstraint(Sketcher.Constraint("Coincident", 26, 1, 27, 1))
sketch5.addConstraint(Sketcher.Constraint("Coincident", 27, 2, 24, 2))
sketch5.addConstraint(Sketcher.Constraint("Coincident", 28, 1, 29, 1))
sketch5.addConstraint(Sketcher.Constraint("Coincident", 29, 2, 30, 2))
sketch5.addConstraint(Sketcher.Constraint("Coincident", 30, 1, 31, 1))
sketch5.addConstraint(Sketcher.Constraint("Coincident", 31, 2, 28, 2))
sketch5.addConstraint(Sketcher.Constraint("Coincident", 32, 1, 33, 1))
sketch5.addConstraint(Sketcher.Constraint("Coincident", 33, 2, 34, 2))
sketch5.addConstraint(Sketcher.Constraint("Coincident", 34, 1, 35, 1))
sketch5.addConstraint(Sketcher.Constraint("Coincident", 35, 2, 32, 2))
sketch5.addConstraint(Sketcher.Constraint("Coincident", 36, 1, 37, 1))
sketch5.addConstraint(Sketcher.Constraint("Coincident", 37, 2, 38, 2))
sketch5.addConstraint(Sketcher.Constraint("Coincident", 38, 1, 39, 1))
sketch5.addConstraint(Sketcher.Constraint("Coincident", 39, 2, 36, 2))
sketch5.addConstraint(Sketcher.Constraint("Coincident", 40, 1, 41, 1))
sketch5.addConstraint(Sketcher.Constraint("Coincident", 41, 2, 42, 2))
sketch5.addConstraint(Sketcher.Constraint("Coincident", 42, 1, 43, 1))
sketch5.addConstraint(Sketcher.Constraint("Coincident", 43, 2, 40, 2))
sketch5.addConstraint(Sketcher.Constraint("Coincident", 44, 1, 45, 1))
sketch5.addConstraint(Sketcher.Constraint("Coincident", 45, 2, 46, 2))
sketch5.addConstraint(Sketcher.Constraint("Coincident", 46, 1, 47, 1))
sketch5.addConstraint(Sketcher.Constraint("Coincident", 47, 2, 44, 2))
sketch5.addConstraint(Sketcher.Constraint("Horizontal", 1))
sketch5.addConstraint(Sketcher.Constraint("Horizontal", 3))
sketch5.addConstraint(Sketcher.Constraint("Horizontal", 5))
sketch5.addConstraint(Sketcher.Constraint("Horizontal", 7))
sketch5.addConstraint(Sketcher.Constraint("Horizontal", 9))
sketch5.addConstraint(Sketcher.Constraint("Horizontal", 11))
sketch5.addConstraint(Sketcher.Constraint("Horizontal", 13))
sketch5.addConstraint(Sketcher.Constraint("Horizontal", 15))
sketch5.addConstraint(Sketcher.Constraint("Horizontal", 17))
sketch5.addConstraint(Sketcher.Constraint("Horizontal", 19))
sketch5.addConstraint(Sketcher.Constraint("Horizontal", 21))
sketch5.addConstraint(Sketcher.Constraint("Horizontal", 23))
sketch5.addConstraint(Sketcher.Constraint("Horizontal", 25))
sketch5.addConstraint(Sketcher.Constraint("Horizontal", 27))
sketch5.addConstraint(Sketcher.Constraint("Horizontal", 29))
sketch5.addConstraint(Sketcher.Constraint("Horizontal", 31))
sketch5.addConstraint(Sketcher.Constraint("Horizontal", 33))
sketch5.addConstraint(Sketcher.Constraint("Horizontal", 35))
sketch5.addConstraint(Sketcher.Constraint("Horizontal", 37))
sketch5.addConstraint(Sketcher.Constraint("Horizontal", 39))
sketch5.addConstraint(Sketcher.Constraint("Horizontal", 41))
sketch5.addConstraint(Sketcher.Constraint("Horizontal", 43))
sketch5.addConstraint(Sketcher.Constraint("Horizontal", 45))
sketch5.addConstraint(Sketcher.Constraint("Horizontal", 47))
sketch5.addConstraint(Sketcher.Constraint("Coincident", 20, 3, -1, 1))
sketch5.addConstraint(Sketcher.Constraint("Coincident", 26, 3, -1, 1))
sketch5.addConstraint(Sketcher.Constraint("Coincident", 6, 3, 0, 3))
sketch5.addConstraint(Sketcher.Constraint("Coincident", 10, 3, 4, 3))
sketch5.addConstraint(Sketcher.Constraint("Coincident", 14, 3, 8, 3))
sketch5.addConstraint(Sketcher.Constraint("Coincident", 18, 3, 12, 3))
sketch5.addConstraint(Sketcher.Constraint("Coincident", 22, 3, 16, 3))
sketch5.addConstraint(Sketcher.Constraint("Coincident", 30, 3, 24, 3))
sketch5.addConstraint(Sketcher.Constraint("Coincident", 34, 3, 28, 3))
sketch5.addConstraint(Sketcher.Constraint("Coincident", 38, 3, 32, 3))
sketch5.addConstraint(Sketcher.Constraint("Coincident", 42, 3, 36, 3))
sketch5.addConstraint(Sketcher.Constraint("Coincident", 46, 3, 40, 3))
sketch5.addConstraint(Sketcher.Constraint("Equal", 0, 2))
sketch5.addConstraint(Sketcher.Constraint("Equal", 2, 4))
sketch5.addConstraint(Sketcher.Constraint("Equal", 4, 6))
sketch5.addConstraint(Sketcher.Constraint("Equal", 6, 8))
sketch5.addConstraint(Sketcher.Constraint("Equal", 8, 10))
sketch5.addConstraint(Sketcher.Constraint("Equal", 10, 12))
sketch5.addConstraint(Sketcher.Constraint("Equal", 12, 14))
sketch5.addConstraint(Sketcher.Constraint("Equal", 14, 16))
sketch5.addConstraint(Sketcher.Constraint("Equal", 16, 18))
sketch5.addConstraint(Sketcher.Constraint("Equal", 18, 20))
sketch5.addConstraint(Sketcher.Constraint("Equal", 20, 22))
sketch5.addConstraint(Sketcher.Constraint("Equal", 22, 24))
sketch5.addConstraint(Sketcher.Constraint("Equal", 24, 26))
sketch5.addConstraint(Sketcher.Constraint("Equal", 26, 28))
sketch5.addConstraint(Sketcher.Constraint("Equal", 28, 30))
sketch5.addConstraint(Sketcher.Constraint("Equal", 30, 32))
sketch5.addConstraint(Sketcher.Constraint("Equal", 32, 34))
sketch5.addConstraint(Sketcher.Constraint("Equal", 34, 36))
sketch5.addConstraint(Sketcher.Constraint("Equal", 36, 38))
sketch5.addConstraint(Sketcher.Constraint("Equal", 38, 40))
sketch5.addConstraint(Sketcher.Constraint("Equal", 40, 42))
sketch5.addConstraint(Sketcher.Constraint("Equal", 42, 44))
sketch5.addConstraint(Sketcher.Constraint("Equal", 44, 46))
sketch5.addConstraint(Sketcher.Constraint("Symmetric", 16, 3, 24, 3, -1, 1))
sketch5.addConstraint(Sketcher.Constraint("Symmetric", 12, 3, 28, 3, -1, 1))
sketch5.addConstraint(Sketcher.Constraint("Symmetric", 8, 3, 32, 3, -1, 1))
sketch5.addConstraint(Sketcher.Constraint("Symmetric", 4, 3, 36, 3, -1, 1))
sketch5.addConstraint(Sketcher.Constraint("Symmetric", 0, 3, 40, 3, -1, 1))
sketch5.addConstraint(Sketcher.Constraint("Symmetric", 2, 3, 44, 3, -1, 1))
sketch5.addConstraint(Sketcher.Constraint("Symmetric", 21, 2, 24, 1, -2))
sketch5.addConstraint(Sketcher.Constraint("Symmetric", 17, 2, 28, 1, -2))
sketch5.addConstraint(Sketcher.Constraint("Symmetric", 13, 2, 32, 1, -2))
sketch5.addConstraint(Sketcher.Constraint("Symmetric", 9, 2, 36, 1, -2))
sketch5.addConstraint(Sketcher.Constraint("Symmetric", 5, 2, 40, 1, -2))
sketch5.addConstraint(Sketcher.Constraint("Symmetric", 1, 2, 44, 1, -2))
sketch5.addConstraint(Sketcher.Constraint("Horizontal", 1, 2, 4, 1))
sketch5.addConstraint(Sketcher.Constraint("Horizontal", 3, 2, 6, 1))
sketch5.addConstraint(Sketcher.Constraint("Horizontal", 5, 2, 8, 1))
sketch5.addConstraint(Sketcher.Constraint("Horizontal", 7, 2, 10, 1))
sketch5.addConstraint(Sketcher.Constraint("Horizontal", 9, 2, 12, 1))
sketch5.addConstraint(Sketcher.Constraint("Horizontal", 11, 2, 14, 1))
sketch5.addConstraint(Sketcher.Constraint("Horizontal", 13, 2, 16, 1))
sketch5.addConstraint(Sketcher.Constraint("Horizontal", 15, 2, 18, 1))
sketch5.addConstraint(Sketcher.Constraint("Horizontal", 17, 2, 20, 1))
sketch5.addConstraint(Sketcher.Constraint("Horizontal", 19, 2, 22, 1))
sketch5.addConstraint(Sketcher.Constraint("Horizontal", 23, 2, 26, 1))
sketch5.addConstraint(Sketcher.Constraint("Horizontal", 27, 2, 30, 1))
sketch5.addConstraint(Sketcher.Constraint("Horizontal", 31, 2, 34, 1))
sketch5.addConstraint(Sketcher.Constraint("Horizontal", 35, 2, 38, 1))
sketch5.addConstraint(Sketcher.Constraint("Horizontal", 39, 2, 42, 1))
sketch5.addConstraint(Sketcher.Constraint("Horizontal", 43, 2, 46, 1))
sketch5.addConstraint(Sketcher.Constraint("Vertical", 1, 2, 2, 1))
sketch5.addConstraint(Sketcher.Constraint("Equal", 3, 5))
sketch5.addConstraint(Sketcher.Constraint("Equal", 7, 9))
sketch5.addConstraint(Sketcher.Constraint("Equal", 11, 13))
sketch5.addConstraint(Sketcher.Constraint("Equal", 15, 17))
sketch5.addConstraint(Sketcher.Constraint("Equal", 19, 21))
sketch5.addConstraint(Sketcher.Constraint("Radius", 0, Q("3.5 mm")))
sketch5.addConstraint(Sketcher.Constraint("DistanceX", -1, 1, 16, 3, Q("8 mm")))
sketch5.addConstraint(Sketcher.Constraint("DistanceY", 0, 1, -1, 1, Q("3 mm")))
sketch5.setExpression("Constraints[141]", "Params.sketch5_radius")
pocket4 = body.newObject("PartDesign::Pocket", "Pocket003")
pocket4.Profile = sketch5
pocket4.Type = "ThroughAll"

doc.recompute()
